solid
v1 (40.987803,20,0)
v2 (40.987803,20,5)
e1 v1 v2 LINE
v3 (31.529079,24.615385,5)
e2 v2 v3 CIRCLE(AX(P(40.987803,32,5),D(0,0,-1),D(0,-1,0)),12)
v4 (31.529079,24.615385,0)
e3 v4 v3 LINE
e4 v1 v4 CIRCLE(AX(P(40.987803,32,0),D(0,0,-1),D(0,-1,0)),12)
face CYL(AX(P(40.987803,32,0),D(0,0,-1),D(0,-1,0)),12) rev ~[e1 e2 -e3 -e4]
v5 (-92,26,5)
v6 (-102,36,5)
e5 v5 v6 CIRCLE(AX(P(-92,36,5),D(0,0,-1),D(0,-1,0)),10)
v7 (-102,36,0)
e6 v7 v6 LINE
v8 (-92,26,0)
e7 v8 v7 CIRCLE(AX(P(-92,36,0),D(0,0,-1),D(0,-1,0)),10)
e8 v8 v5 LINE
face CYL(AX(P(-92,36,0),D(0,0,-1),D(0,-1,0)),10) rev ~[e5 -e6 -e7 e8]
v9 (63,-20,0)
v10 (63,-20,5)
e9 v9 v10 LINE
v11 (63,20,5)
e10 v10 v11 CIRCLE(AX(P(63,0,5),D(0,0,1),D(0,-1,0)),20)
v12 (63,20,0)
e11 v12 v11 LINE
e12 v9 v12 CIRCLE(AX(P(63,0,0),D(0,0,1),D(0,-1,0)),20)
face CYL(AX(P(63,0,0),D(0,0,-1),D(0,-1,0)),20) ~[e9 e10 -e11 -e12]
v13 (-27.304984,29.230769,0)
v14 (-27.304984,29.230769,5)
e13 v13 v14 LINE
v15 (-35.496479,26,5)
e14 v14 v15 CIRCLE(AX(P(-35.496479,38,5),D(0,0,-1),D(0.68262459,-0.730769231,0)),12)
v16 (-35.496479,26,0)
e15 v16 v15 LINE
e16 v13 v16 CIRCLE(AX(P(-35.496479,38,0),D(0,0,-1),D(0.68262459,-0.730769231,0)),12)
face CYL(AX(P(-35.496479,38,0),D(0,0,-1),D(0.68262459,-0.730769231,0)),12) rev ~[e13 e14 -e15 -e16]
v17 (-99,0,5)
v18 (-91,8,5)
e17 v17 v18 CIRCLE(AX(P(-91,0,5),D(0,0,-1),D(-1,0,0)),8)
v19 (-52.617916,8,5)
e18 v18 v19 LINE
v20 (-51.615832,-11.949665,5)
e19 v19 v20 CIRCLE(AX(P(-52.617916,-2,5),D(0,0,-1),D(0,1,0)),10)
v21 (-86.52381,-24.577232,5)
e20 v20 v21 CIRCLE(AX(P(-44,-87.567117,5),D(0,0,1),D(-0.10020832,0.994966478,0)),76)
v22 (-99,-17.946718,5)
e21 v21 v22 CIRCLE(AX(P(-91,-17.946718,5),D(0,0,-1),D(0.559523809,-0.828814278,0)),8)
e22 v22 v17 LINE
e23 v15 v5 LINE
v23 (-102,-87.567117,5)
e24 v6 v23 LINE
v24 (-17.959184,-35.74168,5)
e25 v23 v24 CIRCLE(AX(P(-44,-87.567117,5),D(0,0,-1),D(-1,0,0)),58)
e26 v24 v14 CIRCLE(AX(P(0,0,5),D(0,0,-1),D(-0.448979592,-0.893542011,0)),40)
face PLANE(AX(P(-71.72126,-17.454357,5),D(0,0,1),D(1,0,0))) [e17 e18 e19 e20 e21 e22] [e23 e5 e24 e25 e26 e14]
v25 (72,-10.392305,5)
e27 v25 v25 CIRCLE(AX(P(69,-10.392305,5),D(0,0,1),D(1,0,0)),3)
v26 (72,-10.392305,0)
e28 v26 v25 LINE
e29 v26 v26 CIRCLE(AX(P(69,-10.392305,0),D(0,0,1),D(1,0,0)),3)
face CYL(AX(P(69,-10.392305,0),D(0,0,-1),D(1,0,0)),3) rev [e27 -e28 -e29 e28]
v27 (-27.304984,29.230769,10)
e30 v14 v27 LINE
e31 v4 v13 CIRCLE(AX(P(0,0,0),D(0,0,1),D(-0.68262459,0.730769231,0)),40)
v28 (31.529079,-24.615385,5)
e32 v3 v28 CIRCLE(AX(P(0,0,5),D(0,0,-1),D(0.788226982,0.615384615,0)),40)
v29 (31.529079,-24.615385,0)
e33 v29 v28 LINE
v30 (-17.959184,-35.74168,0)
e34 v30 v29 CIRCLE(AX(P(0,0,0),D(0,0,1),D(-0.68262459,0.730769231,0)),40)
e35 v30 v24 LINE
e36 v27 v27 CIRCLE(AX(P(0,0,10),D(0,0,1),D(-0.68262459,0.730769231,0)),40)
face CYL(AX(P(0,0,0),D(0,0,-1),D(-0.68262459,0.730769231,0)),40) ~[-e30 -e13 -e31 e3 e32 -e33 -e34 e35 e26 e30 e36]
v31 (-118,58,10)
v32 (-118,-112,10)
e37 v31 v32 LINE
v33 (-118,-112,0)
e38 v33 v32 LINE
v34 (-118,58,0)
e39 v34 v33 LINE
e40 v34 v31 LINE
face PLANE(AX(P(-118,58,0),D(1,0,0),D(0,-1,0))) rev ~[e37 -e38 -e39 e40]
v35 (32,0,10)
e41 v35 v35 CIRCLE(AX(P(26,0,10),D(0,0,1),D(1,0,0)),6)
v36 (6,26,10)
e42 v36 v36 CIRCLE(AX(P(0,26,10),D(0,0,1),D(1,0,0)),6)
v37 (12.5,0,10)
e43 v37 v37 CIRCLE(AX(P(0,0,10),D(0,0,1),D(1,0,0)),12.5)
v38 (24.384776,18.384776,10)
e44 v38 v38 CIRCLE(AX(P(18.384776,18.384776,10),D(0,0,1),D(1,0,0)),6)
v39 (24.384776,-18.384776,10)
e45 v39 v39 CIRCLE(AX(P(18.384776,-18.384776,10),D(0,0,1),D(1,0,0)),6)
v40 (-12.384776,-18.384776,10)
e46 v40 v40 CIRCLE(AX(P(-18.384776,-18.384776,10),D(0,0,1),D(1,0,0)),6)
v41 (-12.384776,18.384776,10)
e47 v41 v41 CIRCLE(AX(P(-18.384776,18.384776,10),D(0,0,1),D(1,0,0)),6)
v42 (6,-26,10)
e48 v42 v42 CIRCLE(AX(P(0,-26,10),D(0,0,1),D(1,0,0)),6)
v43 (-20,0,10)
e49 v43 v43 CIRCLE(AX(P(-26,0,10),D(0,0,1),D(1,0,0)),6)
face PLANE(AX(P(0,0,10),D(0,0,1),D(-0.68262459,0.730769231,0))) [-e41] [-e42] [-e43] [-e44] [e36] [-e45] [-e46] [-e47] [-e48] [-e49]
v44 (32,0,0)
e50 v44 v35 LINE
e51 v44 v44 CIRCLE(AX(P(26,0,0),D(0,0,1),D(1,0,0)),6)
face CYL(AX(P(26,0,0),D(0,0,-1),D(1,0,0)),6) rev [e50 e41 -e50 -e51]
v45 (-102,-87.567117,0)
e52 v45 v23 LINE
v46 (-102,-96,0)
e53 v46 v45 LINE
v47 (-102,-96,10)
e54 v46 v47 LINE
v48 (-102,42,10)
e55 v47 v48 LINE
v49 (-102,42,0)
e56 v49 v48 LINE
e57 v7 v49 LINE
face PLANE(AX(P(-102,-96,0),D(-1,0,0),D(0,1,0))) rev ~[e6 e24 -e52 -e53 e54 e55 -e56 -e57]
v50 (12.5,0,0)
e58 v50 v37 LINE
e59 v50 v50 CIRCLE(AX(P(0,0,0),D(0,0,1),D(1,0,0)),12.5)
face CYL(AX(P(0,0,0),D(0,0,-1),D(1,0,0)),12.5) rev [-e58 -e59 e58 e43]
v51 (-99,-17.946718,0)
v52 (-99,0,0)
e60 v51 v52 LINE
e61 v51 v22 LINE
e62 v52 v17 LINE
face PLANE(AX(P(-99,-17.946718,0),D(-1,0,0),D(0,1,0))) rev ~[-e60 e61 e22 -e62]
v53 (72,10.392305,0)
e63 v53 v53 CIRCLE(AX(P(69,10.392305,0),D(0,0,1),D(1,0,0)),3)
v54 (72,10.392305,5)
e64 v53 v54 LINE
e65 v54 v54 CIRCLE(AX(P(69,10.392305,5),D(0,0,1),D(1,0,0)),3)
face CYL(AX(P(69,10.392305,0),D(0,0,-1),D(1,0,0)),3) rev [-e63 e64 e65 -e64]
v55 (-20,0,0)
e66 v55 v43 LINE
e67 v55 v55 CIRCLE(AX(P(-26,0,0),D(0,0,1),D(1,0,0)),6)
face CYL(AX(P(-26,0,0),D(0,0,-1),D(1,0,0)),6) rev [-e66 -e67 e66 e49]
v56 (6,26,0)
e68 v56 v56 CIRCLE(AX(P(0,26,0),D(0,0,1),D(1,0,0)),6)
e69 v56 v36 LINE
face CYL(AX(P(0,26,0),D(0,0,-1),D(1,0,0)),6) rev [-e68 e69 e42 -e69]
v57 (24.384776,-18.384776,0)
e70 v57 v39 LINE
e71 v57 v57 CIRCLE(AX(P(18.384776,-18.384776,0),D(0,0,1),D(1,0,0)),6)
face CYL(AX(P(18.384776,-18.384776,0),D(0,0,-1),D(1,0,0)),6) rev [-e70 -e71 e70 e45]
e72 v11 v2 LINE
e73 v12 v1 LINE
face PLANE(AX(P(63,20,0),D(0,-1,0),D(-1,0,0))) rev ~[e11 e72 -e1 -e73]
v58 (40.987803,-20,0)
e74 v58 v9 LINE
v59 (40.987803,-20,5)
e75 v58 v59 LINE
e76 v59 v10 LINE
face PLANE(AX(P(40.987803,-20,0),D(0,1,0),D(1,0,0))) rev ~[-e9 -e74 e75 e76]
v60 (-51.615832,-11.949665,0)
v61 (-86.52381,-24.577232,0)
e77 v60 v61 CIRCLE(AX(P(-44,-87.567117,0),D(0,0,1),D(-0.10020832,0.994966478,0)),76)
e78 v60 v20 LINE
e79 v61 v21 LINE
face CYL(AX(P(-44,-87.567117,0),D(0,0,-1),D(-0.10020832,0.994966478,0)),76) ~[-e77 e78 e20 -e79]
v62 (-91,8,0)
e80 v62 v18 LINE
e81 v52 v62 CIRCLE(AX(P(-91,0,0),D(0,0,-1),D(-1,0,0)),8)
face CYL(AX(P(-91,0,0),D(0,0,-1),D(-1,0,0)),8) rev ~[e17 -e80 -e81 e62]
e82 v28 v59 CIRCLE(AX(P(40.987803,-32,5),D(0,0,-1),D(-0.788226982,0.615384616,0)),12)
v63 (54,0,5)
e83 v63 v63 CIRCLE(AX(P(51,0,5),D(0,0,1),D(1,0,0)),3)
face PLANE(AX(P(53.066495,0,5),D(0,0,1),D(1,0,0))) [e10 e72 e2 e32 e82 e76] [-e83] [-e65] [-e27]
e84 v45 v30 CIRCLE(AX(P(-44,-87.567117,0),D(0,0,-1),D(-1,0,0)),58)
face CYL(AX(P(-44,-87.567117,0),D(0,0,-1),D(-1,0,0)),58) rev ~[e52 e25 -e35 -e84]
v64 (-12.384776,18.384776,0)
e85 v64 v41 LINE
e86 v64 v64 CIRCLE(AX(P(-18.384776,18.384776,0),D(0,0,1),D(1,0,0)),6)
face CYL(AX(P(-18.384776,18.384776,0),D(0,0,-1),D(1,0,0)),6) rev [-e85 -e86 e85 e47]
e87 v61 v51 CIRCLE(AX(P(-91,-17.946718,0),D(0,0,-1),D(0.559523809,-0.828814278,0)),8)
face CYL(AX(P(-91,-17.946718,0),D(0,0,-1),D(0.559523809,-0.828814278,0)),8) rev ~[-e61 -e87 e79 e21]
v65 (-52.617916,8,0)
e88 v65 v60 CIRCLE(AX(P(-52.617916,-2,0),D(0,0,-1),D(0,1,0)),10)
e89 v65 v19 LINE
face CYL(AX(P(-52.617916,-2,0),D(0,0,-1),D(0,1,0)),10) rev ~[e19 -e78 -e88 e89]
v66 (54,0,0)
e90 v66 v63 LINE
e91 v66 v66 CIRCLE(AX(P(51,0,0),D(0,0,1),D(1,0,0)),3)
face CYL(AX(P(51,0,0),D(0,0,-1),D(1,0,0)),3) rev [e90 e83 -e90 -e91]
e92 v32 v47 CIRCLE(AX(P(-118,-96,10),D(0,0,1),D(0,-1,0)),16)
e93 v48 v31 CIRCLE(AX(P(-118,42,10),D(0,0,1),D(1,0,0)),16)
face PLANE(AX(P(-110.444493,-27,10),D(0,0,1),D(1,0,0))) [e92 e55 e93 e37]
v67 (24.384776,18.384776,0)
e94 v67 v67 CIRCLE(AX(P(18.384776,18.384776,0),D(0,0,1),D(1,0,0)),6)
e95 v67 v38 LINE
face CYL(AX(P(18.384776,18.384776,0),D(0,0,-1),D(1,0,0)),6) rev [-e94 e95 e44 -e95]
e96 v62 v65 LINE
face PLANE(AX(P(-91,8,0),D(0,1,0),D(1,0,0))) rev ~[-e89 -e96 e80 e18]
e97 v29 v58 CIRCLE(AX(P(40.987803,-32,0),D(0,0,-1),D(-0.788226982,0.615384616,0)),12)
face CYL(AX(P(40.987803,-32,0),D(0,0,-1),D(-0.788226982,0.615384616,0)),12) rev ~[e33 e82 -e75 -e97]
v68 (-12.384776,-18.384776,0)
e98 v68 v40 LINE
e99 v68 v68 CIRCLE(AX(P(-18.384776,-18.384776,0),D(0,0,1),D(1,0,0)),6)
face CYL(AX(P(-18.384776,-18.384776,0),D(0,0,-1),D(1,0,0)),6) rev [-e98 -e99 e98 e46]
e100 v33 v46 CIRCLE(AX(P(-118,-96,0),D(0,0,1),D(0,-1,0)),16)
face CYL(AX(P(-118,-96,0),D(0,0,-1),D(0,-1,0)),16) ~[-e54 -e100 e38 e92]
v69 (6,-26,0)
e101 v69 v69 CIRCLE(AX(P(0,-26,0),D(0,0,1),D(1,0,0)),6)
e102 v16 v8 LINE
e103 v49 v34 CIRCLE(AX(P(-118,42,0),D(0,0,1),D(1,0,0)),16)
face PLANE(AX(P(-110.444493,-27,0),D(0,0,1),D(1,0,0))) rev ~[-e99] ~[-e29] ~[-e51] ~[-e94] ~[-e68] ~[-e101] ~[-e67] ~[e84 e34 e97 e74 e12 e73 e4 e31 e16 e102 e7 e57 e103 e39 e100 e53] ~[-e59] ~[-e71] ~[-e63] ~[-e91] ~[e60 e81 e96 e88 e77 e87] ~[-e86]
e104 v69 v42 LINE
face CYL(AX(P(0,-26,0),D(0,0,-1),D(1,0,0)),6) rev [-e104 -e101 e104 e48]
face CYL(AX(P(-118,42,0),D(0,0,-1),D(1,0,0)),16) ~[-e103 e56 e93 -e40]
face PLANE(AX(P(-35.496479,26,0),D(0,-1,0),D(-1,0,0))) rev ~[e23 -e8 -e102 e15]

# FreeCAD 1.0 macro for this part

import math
import FreeCAD as App
import Part
import Sketcher

V = App.Vector
Q = App.Units.Quantity

doc = App.newDocument("Part")
body = doc.addObject("PartDesign::Body", "Body")

# Sketch on XY plane
sketch1 = body.newObject("Sketcher::SketchObject", "Sketch")
sketch1.AttachmentSupport = (doc.getObject("XY_Plane"), [""])
sketch1.MapMode = "FlatFace"
sketch1.addGeometry([
    Part.ArcOfCircle(Part.Circle(V(63, 0, 0), V(0, 0, 1), 20), math.radians(-90), math.radians(90)),  # 0
    Part.LineSegment(V(63, 20, 0), V(40.987803, 20, 0)),  # 1
    Part.ArcOfCircle(Part.Circle(V(40.987803, 32, 0), V(0, 0, 1), 12), math.radians(-142.020128), math.radians(-90)),  # 2
    Part.ArcOfCircle(Part.Circle(V(0, 0, 0), V(0, 0, 1), 40), math.radians(-37.979872), math.radians(37.979872)),  # 3
    Part.ArcOfCircle(Part.Circle(V(40.987803, -32, 0), V(0, 0, 1), 12), math.radians(90), math.radians(142.020128)),  # 4
    Part.LineSegment(V(40.987803, -20, 0), V(63, -20, 0)),  # 5
    Part.Circle(V(69, -10.392305, 0), V(0, 0, 1), 3),  # 6
    Part.Circle(V(51, 0, 0), V(0, 0, 1), 3),  # 7
    Part.Circle(V(69, 10.392305, 0), V(0, 0, 1), 3),  # 8
], False)
sketch1.addConstraint([
    Sketcher.Constraint("Tangent", 0, 2, 1, 1),
    Sketcher.Constraint("Tangent", 1, 2, 2, 2),
    Sketcher.Constraint("Tangent", 2, 1, 3, 2),
    Sketcher.Constraint("Tangent", 3, 1, 4, 2),
    Sketcher.Constraint("Tangent", 4, 1, 5, 1),
    Sketcher.Constraint("Tangent", 5, 2, 0, 1),
    Sketcher.Constraint("Horizontal", 1),
    Sketcher.Constraint("Horizontal", 5),
    Sketcher.Constraint("Coincident", 3, 3, -1, 1),
    Sketcher.Constraint("Equal", 2, 4),
    Sketcher.Constraint("Equal", 6, 7),
    Sketcher.Constraint("Equal", 7, 8),
    Sketcher.Constraint("Symmetric", 6, 3, 8, 3, -1),
    Sketcher.Constraint("PointOnObject", 0, 3, -1),
    Sketcher.Constraint("PointOnObject", 7, 3, -1),
    Sketcher.Constraint("Diameter", 6, Q("6 mm")),
    Sketcher.Constraint("Radius", 0, Q("20 mm")),
    Sketcher.Constraint("Radius", 2, Q("12 mm")),
    Sketcher.Constraint("Radius", 3, Q("40 mm")),
    Sketcher.Constraint("DistanceX", -1, 1, 0, 3, Q("63 mm")),
    Sketcher.Constraint("DistanceX", -1, 1, 6, 3, Q("69 mm")),
    Sketcher.Constraint("DistanceX", -1, 1, 7, 3, Q("51 mm")),
    Sketcher.Constraint("DistanceY", 6, 3, 8, 3, Q("20.78461 mm")),
])
pad1 = body.newObject("PartDesign::Pad", "Pad")
pad1.Profile = sketch1
pad1.Length = 5
body2 = doc.addObject("PartDesign::Body", "Body001")

# Sketch on XY plane
sketch2 = body2.newObject("Sketcher::SketchObject", "Sketch001")
sketch2.AttachmentSupport = (doc.getObject("XY_Plane001"), [""])
sketch2.MapMode = "FlatFace"
sketch2.addGeometry([
    Part.ArcOfCircle(Part.Circle(V(0, 0, 0), V(0, 0, 1), 40), math.radians(133.04908), math.radians(243.321766)),  # 0
    Part.ArcOfCircle(Part.Circle(V(-35.496479, 38, 0), V(0, 0, 1), 12), math.radians(-90), math.radians(-46.95092)),  # 1
    Part.LineSegment(V(-35.496479, 26, 0), V(-92, 26, 0)),  # 2
    Part.ArcOfCircle(Part.Circle(V(-92, 36, 0), V(0, 0, 1), 10), math.radians(180), math.radians(270)),  # 3
    Part.LineSegment(V(-102, 36, 0), V(-102, -87.567117, 0)),  # 4
    Part.ArcOfCircle(Part.Circle(V(-44, -87.567117, 0), V(0, 0, 1), 58), math.radians(63.321766), math.radians(180)),  # 5
    Part.LineSegment(V(-99, -17.946718, 0), V(-99, 0, 0)),  # 6
    Part.ArcOfCircle(Part.Circle(V(-91, 0, 0), V(0, 0, 1), 8), math.radians(90), math.radians(180)),  # 7
    Part.LineSegment(V(-91, 8, 0), V(-52.617916, 8, 0)),  # 8
    Part.ArcOfCircle(Part.Circle(V(-52.617916, -2, 0), V(0, 0, 1), 10), math.radians(-84.248833), math.radians(90)),  # 9
    Part.ArcOfCircle(Part.Circle(V(-44, -87.567117, 0), V(0, 0, 1), 76), math.radians(95.751167), math.radians(124.022872)),  # 10
    Part.ArcOfCircle(Part.Circle(V(-91, -17.946718, 0), V(0, 0, 1), 8), math.radians(-180), math.radians(-55.977128)),  # 11
], False)
sketch2.addConstraint([
    Sketcher.Constraint("Tangent", 0, 1, 1, 2),
    Sketcher.Constraint("Tangent", 1, 1, 2, 1),
    Sketcher.Constraint("Tangent", 2, 2, 3, 2),
    Sketcher.Constraint("Tangent", 3, 1, 4, 1),
    Sketcher.Constraint("Tangent", 4, 2, 5, 2),
    Sketcher.Constraint("Tangent", 5, 1, 0, 2),
    Sketcher.Constraint("Tangent", 6, 2, 7, 2),
    Sketcher.Constraint("Tangent", 7, 1, 8, 1),
    Sketcher.Constraint("Tangent", 8, 2, 9, 2),
    Sketcher.Constraint("Tangent", 9, 1, 10, 1),
    Sketcher.Constraint("Tangent", 10, 2, 11, 2),
    Sketcher.Constraint("Tangent", 11, 1, 6, 1),
    Sketcher.Constraint("Horizontal", 2),
    Sketcher.Constraint("Vertical", 4),
    Sketcher.Constraint("Vertical", 6),
    Sketcher.Constraint("Horizontal", 8),
    Sketcher.Constraint("Coincident", 0, 3, -1, 1),
    Sketcher.Constraint("Coincident", 10, 3, 5, 3),
    Sketcher.Constraint("Equal", 3, 9),
    Sketcher.Constraint("Equal", 7, 11),
    Sketcher.Constraint("PointOnObject", 7, 3, -1),
    Sketcher.Constraint("Radius", 0, Q("40 mm")),
    Sketcher.Constraint("Radius", 1, Q("12 mm")),
    Sketcher.Constraint("Radius", 3, Q("10 mm")),
    Sketcher.Constraint("Radius", 5, Q("58 mm")),
    Sketcher.Constraint("Radius", 7, Q("8 mm")),
    Sketcher.Constraint("Radius", 10, Q("76 mm")),
    Sketcher.Constraint("DistanceY", -1, 1, 1, 3, Q("38 mm")),
    Sketcher.Constraint("DistanceX", 3, 3, -1, 1, Q("92 mm")),
    Sketcher.Constraint("DistanceX", 7, 3, -1, 1, Q("91 mm")),
])
pad2 = body2.newObject("PartDesign::Pad", "Pad001")
pad2.Profile = sketch2
pad2.Length = 5
body.AllowCompound = True
doc.recompute()

boolean = body.newObject("PartDesign::Boolean", "Boolean")
boolean.Type = "Fuse"
boolean.addObjects([body2])

# Sketch on XY plane
sketch3 = body.newObject("Sketcher::SketchObject", "Sketch002")
sketch3.AttachmentSupport = (doc.getObject("XY_Plane"), [""])
sketch3.MapMode = "FlatFace"
sketch3.addGeometry([
    Part.LineSegment(V(-118, 58, 0), V(-118, -112, 0)),  # 0
    Part.ArcOfCircle(Part.Circle(V(-118, -96, 0), V(0, 0, 1), 16), math.radians(-90), math.radians(0)),  # 1
    Part.LineSegment(V(-102, -96, 0), V(-102, 42, 0)),  # 2
    Part.ArcOfCircle(Part.Circle(V(-118, 42, 0), V(0, 0, 1), 16), math.radians(0), math.radians(90)),  # 3
    Part.Circle(V(0, 0, 0), V(0, 0, 1), 40),  # 4
    Part.Circle(V(26, 0, 0), V(0, 0, 1), 6),  # 5
    Part.Circle(V(18.384776, -18.384776, 0), V(0, 0, 1), 6),  # 6
    Part.Circle(V(18.384776, 18.384776, 0), V(0, 0, 1), 6),  # 7
    Part.Circle(V(0, 26, 0), V(0, 0, 1), 6),  # 8
    Part.Circle(V(0, 0, 0), V(0, 0, 1), 12.5),  # 9
    Part.Circle(V(0, -26, 0), V(0, 0, 1), 6),  # 10
    Part.Circle(V(-18.384776, -18.384776, 0), V(0, 0, 1), 6),  # 11
    Part.Circle(V(-18.384776, 18.384776, 0), V(0, 0, 1), 6),  # 12
    Part.Circle(V(-26, 0, 0), V(0, 0, 1), 6),  # 13
], False)
sketch3.addConstraint([
    Sketcher.Constraint("Coincident", 0, 2, 1, 1),
    Sketcher.Constraint("Tangent", 1, 2, 2, 1),
    Sketcher.Constraint("Tangent", 2, 2, 3, 1),
    Sketcher.Constraint("Coincident", 3, 2, 0, 1),
    Sketcher.Constraint("Vertical", 0),
    Sketcher.Constraint("Vertical", 2),
    Sketcher.Constraint("Coincident", 4, 3, -1, 1),
    Sketcher.Constraint("Coincident", 9, 3, -1, 1),
    Sketcher.Constraint("Equal", 1, 3),
    Sketcher.Constraint("Equal", 5, 6),
    Sketcher.Constraint("Equal", 6, 7),
    Sketcher.Constraint("Equal", 7, 8),
    Sketcher.Constraint("Equal", 8, 10),
    Sketcher.Constraint("Equal", 10, 11),
    Sketcher.Constraint("Equal", 11, 12),
    Sketcher.Constraint("Equal", 12, 13),
    Sketcher.Constraint("Symmetric", 8, 3, 10, 3, -1, 1),
    Sketcher.Constraint("Symmetric", 7, 3, 11, 3, -1, 1),
    Sketcher.Constraint("Symmetric", 6, 3, 12, 3, -1, 1),
    Sketcher.Constraint("Symmetric", 5, 3, 13, 3, -1, 1),
    Sketcher.Constraint("Symmetric", 6, 3, 11, 3, -2),
    Sketcher.Constraint("PointOnObject", 5, 3, -1),
    Sketcher.Constraint("PointOnObject", 8, 3, -2),
    Sketcher.Constraint("Vertical", 3, 3, 0, 2),
    Sketcher.Constraint("Diameter", 4, Q("80 mm")),
    Sketcher.Constraint("Diameter", 5, Q("12 mm")),
    Sketcher.Constraint("Diameter", 9, Q("25 mm")),
    Sketcher.Constraint("Radius", 1, Q("16 mm")),
    Sketcher.Constraint("DistanceY", 0, 2, 0, 1, Q("170 mm")),
    Sketcher.Constraint("DistanceX", 1, 3, -1, 1, Q("118 mm")),
    Sketcher.Constraint("DistanceY", 1, 3, -1, 1, Q("96 mm")),
    Sketcher.Constraint("DistanceX", -1, 1, 5, 3, Q("26 mm")),
    Sketcher.Constraint("DistanceY", -1, 1, 8, 3, Q("26 mm")),
    Sketcher.Constraint("DistanceX", -1, 1, 6, 3, Q("18.384776 mm")),
    Sketcher.Constraint("DistanceY", 6, 3, -1, 1, Q("18.384776 mm")),
])
pad3 = body.newObject("PartDesign::Pad", "Pad002")
pad3.Profile = sketch3
pad3.Length = 10

doc.recompute()
